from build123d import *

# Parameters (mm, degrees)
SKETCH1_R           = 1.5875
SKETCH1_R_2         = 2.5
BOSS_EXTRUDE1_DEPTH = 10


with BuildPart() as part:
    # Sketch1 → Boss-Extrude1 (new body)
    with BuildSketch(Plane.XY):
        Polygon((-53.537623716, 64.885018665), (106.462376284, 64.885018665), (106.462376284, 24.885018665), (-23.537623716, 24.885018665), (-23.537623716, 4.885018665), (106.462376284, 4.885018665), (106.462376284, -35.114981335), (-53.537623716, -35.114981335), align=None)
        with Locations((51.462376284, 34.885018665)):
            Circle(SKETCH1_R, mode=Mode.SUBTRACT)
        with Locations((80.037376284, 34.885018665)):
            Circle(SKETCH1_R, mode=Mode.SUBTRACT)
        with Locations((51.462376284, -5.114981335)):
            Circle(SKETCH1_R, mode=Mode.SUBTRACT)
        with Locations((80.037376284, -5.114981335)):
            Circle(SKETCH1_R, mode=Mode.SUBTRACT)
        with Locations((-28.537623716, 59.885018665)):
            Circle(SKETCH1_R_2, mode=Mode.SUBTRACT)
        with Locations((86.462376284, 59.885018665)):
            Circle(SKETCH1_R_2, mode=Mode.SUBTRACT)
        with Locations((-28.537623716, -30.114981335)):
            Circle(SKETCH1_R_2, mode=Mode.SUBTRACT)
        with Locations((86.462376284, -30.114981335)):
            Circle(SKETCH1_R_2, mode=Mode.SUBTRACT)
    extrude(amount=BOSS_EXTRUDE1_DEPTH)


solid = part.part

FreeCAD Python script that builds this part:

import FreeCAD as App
import Part
import Sketcher

V = App.Vector


def add_polygon(sketch, points):
    """Adds a closed chain of lines whose ends are joined by coincident constraints."""
    first, n = sketch.GeometryCount, len(points)
    for a, b in zip(points, points[1:] + points[:1]):
        sketch.addGeometry(Part.LineSegment(App.Vector(*a, 0), App.Vector(*b, 0)), False)
    for i in range(n):
        sketch.addConstraint(Sketcher.Constraint("Coincident", first + i, 2, first + (i + 1) % n, 1))

doc = App.newDocument("Part")
body = doc.addObject("PartDesign::Body", "Body")

sketch1 = doc.addObject("Sketcher::SketchObject", "Sketch")
body.addObject(sketch1)
sketch1.AttachmentSupport = (doc.XY_Plane, [""])
sketch1.MapMode = "FlatFace"
add_polygon(sketch1, [(106.5, 64.9), (-53.5, 64.9), (-53.5, -35.1), (106.5, -35.1), (106.5, 4.9), (-23.5, 4.9), (-23.5, 24.9), (106.5, 24.9)])
sketch1.addGeometry(Part.Circle(V(86.5, -30.1, 0), V(0, 0, 1), 2.5), False)
sketch1.addGeometry(Part.Circle(V(80, -5.1, 0), V(0, 0, 1), 1.6), False)
sketch1.addGeometry(Part.Circle(V(51.5, -5.1, 0), V(0, 0, 1), 1.6), False)
sketch1.addGeometry(Part.Circle(V(-28.5, -30.1, 0), V(0, 0, 1), 2.5), False)
sketch1.addGeometry(Part.Circle(V(80, 34.9, 0), V(0, 0, 1), 1.6), False)
sketch1.addGeometry(Part.Circle(V(51.5, 34.9, 0), V(0, 0, 1), 1.6), False)
sketch1.addGeometry(Part.Circle(V(86.5, 59.9, 0), V(0, 0, 1), 2.5), False)
sketch1.addGeometry(Part.Circle(V(-28.5, 59.9, 0), V(0, 0, 1), 2.5), False)
sketch1.addConstraint([
    Sketcher.Constraint("Horizontal", 0),
    Sketcher.Constraint("Vertical", 1),
    Sketcher.Constraint("Horizontal", 2),
    Sketcher.Constraint("Vertical", 3),
    Sketcher.Constraint("Horizontal", 4),
    Sketcher.Constraint("Vertical", 5),
    Sketcher.Constraint("Horizontal", 6),
    Sketcher.Constraint("Vertical", 7),
    Sketcher.Constraint("Equal", 9, 10),
    Sketcher.Constraint("Equal", 8, 11),
    Sketcher.Constraint("Equal", 10, 12),
    Sketcher.Constraint("Equal", 12, 13),
    Sketcher.Constraint("Equal", 11, 14),
    Sketcher.Constraint("Equal", 14, 15),
    Sketcher.Constraint("Horizontal", 9, 3, 10, 3),
    Sketcher.Constraint("Horizontal", 8, 3, 11, 3),
    Sketcher.Constraint("Horizontal", 12, 3, 13, 3),
    Sketcher.Constraint("Horizontal", 14, 3, 15, 3),
    Sketcher.Constraint("Vertical", 9, 3, 12, 3),
    Sketcher.Constraint("Vertical", 10, 3, 13, 3),
    Sketcher.Constraint("Vertical", 8, 3, 14, 3),
    Sketcher.Constraint("Vertical", 11, 3, 15, 3),
    Sketcher.Constraint("Vertical", 3, 2, 6, 2),
    Sketcher.Constraint("Equal", 3, 7),
    Sketcher.Constraint("Diameter", 8, 5.0),
    Sketcher.Constraint("DistanceX", 0, 2, 0, 1, 160.0),
    Sketcher.Constraint("DistanceX", 4, 2, 4, 1, 130.0),
    Sketcher.Constraint("DistanceY", 1, 2, 1, 1, 100.0),
    Sketcher.Constraint("DistanceY", 3, 1, 3, 2, 40.0),
    Sketcher.Constraint("Diameter", 9, 3.175),
    Sketcher.Constraint("DistanceY", 8, 3, 9, 3, 25.0),
    Sketcher.Constraint("DistanceX", 10, 3, 8, 3, 35.0),
    Sketcher.Constraint("DistanceX", 11, 3, 10, 3, 80.0),
    Sketcher.Constraint("DistanceY", 9, 3, 12, 3, 40.0),
    Sketcher.Constraint("DistanceY", 12, 3, 14, 3, 25.0),
    Sketcher.Constraint("DistanceX", 0, 2, 15, 3, 25.0),
    Sketcher.Constraint("DistanceY", 15, 3, 0, 2, 5.0),
    Sketcher.Constraint("DistanceX", 9, 3, 8, 3, 6.425),
    Sketcher.Constraint("DistanceY", 8, 3, -1, 1, 30.114981),
    Sketcher.Constraint("DistanceX", -1, 1, 8, 3, 86.462376),
])
pad1 = doc.addObject("PartDesign::Pad", "Pad")
body.addObject(pad1)
pad1.Profile = sketch1
pad1.Length = 10

doc.recompute()
